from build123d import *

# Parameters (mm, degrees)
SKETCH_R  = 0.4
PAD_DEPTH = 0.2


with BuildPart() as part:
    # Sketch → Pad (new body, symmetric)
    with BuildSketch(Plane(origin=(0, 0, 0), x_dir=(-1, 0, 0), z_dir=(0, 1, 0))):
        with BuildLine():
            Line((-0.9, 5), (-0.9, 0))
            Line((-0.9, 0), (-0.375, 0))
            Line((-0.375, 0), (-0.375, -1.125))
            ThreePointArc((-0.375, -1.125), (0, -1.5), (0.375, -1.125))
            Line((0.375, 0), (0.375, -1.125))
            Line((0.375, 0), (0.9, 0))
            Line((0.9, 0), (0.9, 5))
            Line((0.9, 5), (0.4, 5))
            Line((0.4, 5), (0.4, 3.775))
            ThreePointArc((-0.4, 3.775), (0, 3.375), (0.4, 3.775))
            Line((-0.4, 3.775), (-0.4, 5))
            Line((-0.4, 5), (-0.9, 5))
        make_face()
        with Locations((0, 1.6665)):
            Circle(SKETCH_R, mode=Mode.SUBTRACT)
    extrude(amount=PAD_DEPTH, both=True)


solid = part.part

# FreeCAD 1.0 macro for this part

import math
import FreeCAD as App
import Part
import Sketcher
from FreeCAD import Vector

doc = App.newDocument("Part")
body = doc.addObject("PartDesign::Body", "Body")

sketch1 = body.newObject("Sketcher::SketchObject", "Sketch")
sketch1.AttachmentSupport = (doc.getObject("XZ_Plane"), [""])
sketch1.MapMode = "FlatFace"
sketch1.addGeometry([
    Part.LineSegment(Vector(0.9, 5, 0), Vector(0.9, 0, 0)),
    Part.LineSegment(Vector(0.9, 0, 0), Vector(0.38, 0, 0)),
    Part.LineSegment(Vector(0.38, 0, 0), Vector(0.38, -1.12, 0)),
    Part.ArcOfCircle(Part.Circle(Vector(0, -1.12, 0), Vector(0, 0, 1), 0.38), math.radians(180), math.radians(360)),
    Part.LineSegment(Vector(-0.38, -1.12, 0), Vector(-0.38, 0, 0)),
    Part.LineSegment(Vector(-0.38, 0, 0), Vector(-0.9, 0, 0)),
    Part.LineSegment(Vector(-0.9, 0, 0), Vector(-0.9, 5, 0)),
    Part.LineSegment(Vector(-0.9, 5, 0), Vector(-0.4, 5, 0)),
    Part.LineSegment(Vector(-0.4, 5, 0), Vector(-0.4, 3.77, 0)),
    Part.ArcOfCircle(Part.Circle(Vector(0, 3.77, 0), Vector(0, 0, 1), 0.4), math.radians(180), math.radians(360)),
    Part.LineSegment(Vector(0.4, 3.77, 0), Vector(0.4, 5, 0)),
    Part.LineSegment(Vector(0.4, 5, 0), Vector(0.9, 5, 0)),
    Part.Circle(Vector(0, 1.67, 0), Vector(0, 0, 1), 0.4),
], False)
sketch1.addConstraint([
    Sketcher.Constraint("Coincident", 0, 2, 1, 1),
    Sketcher.Constraint("Coincident", 1, 2, 2, 1),
    Sketcher.Constraint("Tangent", 2, 2, 3, 2),
    Sketcher.Constraint("Tangent", 3, 1, 4, 1),
    Sketcher.Constraint("Coincident", 4, 2, 5, 1),
    Sketcher.Constraint("Coincident", 5, 2, 6, 1),
    Sketcher.Constraint("Coincident", 6, 2, 7, 1),
    Sketcher.Constraint("Coincident", 7, 2, 8, 1),
    Sketcher.Constraint("Tangent", 8, 2, 9, 1),
    Sketcher.Constraint("Tangent", 9, 2, 10, 1),
    Sketcher.Constraint("Coincident", 10, 2, 11, 1),
    Sketcher.Constraint("Coincident", 11, 2, 0, 1),
    Sketcher.Constraint("Vertical", 0),
    Sketcher.Constraint("Horizontal", 1),
    Sketcher.Constraint("Vertical", 2),
    Sketcher.Constraint("Vertical", 4),
    Sketcher.Constraint("Horizontal", 5),
    Sketcher.Constraint("Vertical", 6),
    Sketcher.Constraint("Horizontal", 7),
    Sketcher.Constraint("Vertical", 8),
    Sketcher.Constraint("Vertical", 10),
    Sketcher.Constraint("Horizontal", 11),
    Sketcher.Constraint("Equal", 9, 12),
    Sketcher.Constraint("Symmetric", 1, 2, 4, 2, -1, 1),
    Sketcher.Constraint("Symmetric", 0, 2, 5, 2, -2),
    Sketcher.Constraint("Symmetric", 7, 2, 10, 2, -2),
    Sketcher.Constraint("PointOnObject", 12, 3, -2),
    Sketcher.Constraint("Diameter", 12, 0.8),
    Sketcher.Constraint("DistanceY", 0, 2, 0, 1, 5.0),
    Sketcher.Constraint("DistanceX", 7, 1, 7, 2, 0.5),
    Sketcher.Constraint("Radius", 3, 0.375),
    Sketcher.Constraint("DistanceY", 3, 3, 9, 3, 4.9),
    Sketcher.Constraint("DistanceY", 2, 2, 2, 1, 1.125),
    Sketcher.Constraint("DistanceY", -1, 1, 12, 3, 1.6665),
])
pad1 = body.newObject("PartDesign::Pad", "Pad")
pad1.Profile = sketch1
pad1.Length = 0.4
pad1.Midplane = True

doc.recompute()
